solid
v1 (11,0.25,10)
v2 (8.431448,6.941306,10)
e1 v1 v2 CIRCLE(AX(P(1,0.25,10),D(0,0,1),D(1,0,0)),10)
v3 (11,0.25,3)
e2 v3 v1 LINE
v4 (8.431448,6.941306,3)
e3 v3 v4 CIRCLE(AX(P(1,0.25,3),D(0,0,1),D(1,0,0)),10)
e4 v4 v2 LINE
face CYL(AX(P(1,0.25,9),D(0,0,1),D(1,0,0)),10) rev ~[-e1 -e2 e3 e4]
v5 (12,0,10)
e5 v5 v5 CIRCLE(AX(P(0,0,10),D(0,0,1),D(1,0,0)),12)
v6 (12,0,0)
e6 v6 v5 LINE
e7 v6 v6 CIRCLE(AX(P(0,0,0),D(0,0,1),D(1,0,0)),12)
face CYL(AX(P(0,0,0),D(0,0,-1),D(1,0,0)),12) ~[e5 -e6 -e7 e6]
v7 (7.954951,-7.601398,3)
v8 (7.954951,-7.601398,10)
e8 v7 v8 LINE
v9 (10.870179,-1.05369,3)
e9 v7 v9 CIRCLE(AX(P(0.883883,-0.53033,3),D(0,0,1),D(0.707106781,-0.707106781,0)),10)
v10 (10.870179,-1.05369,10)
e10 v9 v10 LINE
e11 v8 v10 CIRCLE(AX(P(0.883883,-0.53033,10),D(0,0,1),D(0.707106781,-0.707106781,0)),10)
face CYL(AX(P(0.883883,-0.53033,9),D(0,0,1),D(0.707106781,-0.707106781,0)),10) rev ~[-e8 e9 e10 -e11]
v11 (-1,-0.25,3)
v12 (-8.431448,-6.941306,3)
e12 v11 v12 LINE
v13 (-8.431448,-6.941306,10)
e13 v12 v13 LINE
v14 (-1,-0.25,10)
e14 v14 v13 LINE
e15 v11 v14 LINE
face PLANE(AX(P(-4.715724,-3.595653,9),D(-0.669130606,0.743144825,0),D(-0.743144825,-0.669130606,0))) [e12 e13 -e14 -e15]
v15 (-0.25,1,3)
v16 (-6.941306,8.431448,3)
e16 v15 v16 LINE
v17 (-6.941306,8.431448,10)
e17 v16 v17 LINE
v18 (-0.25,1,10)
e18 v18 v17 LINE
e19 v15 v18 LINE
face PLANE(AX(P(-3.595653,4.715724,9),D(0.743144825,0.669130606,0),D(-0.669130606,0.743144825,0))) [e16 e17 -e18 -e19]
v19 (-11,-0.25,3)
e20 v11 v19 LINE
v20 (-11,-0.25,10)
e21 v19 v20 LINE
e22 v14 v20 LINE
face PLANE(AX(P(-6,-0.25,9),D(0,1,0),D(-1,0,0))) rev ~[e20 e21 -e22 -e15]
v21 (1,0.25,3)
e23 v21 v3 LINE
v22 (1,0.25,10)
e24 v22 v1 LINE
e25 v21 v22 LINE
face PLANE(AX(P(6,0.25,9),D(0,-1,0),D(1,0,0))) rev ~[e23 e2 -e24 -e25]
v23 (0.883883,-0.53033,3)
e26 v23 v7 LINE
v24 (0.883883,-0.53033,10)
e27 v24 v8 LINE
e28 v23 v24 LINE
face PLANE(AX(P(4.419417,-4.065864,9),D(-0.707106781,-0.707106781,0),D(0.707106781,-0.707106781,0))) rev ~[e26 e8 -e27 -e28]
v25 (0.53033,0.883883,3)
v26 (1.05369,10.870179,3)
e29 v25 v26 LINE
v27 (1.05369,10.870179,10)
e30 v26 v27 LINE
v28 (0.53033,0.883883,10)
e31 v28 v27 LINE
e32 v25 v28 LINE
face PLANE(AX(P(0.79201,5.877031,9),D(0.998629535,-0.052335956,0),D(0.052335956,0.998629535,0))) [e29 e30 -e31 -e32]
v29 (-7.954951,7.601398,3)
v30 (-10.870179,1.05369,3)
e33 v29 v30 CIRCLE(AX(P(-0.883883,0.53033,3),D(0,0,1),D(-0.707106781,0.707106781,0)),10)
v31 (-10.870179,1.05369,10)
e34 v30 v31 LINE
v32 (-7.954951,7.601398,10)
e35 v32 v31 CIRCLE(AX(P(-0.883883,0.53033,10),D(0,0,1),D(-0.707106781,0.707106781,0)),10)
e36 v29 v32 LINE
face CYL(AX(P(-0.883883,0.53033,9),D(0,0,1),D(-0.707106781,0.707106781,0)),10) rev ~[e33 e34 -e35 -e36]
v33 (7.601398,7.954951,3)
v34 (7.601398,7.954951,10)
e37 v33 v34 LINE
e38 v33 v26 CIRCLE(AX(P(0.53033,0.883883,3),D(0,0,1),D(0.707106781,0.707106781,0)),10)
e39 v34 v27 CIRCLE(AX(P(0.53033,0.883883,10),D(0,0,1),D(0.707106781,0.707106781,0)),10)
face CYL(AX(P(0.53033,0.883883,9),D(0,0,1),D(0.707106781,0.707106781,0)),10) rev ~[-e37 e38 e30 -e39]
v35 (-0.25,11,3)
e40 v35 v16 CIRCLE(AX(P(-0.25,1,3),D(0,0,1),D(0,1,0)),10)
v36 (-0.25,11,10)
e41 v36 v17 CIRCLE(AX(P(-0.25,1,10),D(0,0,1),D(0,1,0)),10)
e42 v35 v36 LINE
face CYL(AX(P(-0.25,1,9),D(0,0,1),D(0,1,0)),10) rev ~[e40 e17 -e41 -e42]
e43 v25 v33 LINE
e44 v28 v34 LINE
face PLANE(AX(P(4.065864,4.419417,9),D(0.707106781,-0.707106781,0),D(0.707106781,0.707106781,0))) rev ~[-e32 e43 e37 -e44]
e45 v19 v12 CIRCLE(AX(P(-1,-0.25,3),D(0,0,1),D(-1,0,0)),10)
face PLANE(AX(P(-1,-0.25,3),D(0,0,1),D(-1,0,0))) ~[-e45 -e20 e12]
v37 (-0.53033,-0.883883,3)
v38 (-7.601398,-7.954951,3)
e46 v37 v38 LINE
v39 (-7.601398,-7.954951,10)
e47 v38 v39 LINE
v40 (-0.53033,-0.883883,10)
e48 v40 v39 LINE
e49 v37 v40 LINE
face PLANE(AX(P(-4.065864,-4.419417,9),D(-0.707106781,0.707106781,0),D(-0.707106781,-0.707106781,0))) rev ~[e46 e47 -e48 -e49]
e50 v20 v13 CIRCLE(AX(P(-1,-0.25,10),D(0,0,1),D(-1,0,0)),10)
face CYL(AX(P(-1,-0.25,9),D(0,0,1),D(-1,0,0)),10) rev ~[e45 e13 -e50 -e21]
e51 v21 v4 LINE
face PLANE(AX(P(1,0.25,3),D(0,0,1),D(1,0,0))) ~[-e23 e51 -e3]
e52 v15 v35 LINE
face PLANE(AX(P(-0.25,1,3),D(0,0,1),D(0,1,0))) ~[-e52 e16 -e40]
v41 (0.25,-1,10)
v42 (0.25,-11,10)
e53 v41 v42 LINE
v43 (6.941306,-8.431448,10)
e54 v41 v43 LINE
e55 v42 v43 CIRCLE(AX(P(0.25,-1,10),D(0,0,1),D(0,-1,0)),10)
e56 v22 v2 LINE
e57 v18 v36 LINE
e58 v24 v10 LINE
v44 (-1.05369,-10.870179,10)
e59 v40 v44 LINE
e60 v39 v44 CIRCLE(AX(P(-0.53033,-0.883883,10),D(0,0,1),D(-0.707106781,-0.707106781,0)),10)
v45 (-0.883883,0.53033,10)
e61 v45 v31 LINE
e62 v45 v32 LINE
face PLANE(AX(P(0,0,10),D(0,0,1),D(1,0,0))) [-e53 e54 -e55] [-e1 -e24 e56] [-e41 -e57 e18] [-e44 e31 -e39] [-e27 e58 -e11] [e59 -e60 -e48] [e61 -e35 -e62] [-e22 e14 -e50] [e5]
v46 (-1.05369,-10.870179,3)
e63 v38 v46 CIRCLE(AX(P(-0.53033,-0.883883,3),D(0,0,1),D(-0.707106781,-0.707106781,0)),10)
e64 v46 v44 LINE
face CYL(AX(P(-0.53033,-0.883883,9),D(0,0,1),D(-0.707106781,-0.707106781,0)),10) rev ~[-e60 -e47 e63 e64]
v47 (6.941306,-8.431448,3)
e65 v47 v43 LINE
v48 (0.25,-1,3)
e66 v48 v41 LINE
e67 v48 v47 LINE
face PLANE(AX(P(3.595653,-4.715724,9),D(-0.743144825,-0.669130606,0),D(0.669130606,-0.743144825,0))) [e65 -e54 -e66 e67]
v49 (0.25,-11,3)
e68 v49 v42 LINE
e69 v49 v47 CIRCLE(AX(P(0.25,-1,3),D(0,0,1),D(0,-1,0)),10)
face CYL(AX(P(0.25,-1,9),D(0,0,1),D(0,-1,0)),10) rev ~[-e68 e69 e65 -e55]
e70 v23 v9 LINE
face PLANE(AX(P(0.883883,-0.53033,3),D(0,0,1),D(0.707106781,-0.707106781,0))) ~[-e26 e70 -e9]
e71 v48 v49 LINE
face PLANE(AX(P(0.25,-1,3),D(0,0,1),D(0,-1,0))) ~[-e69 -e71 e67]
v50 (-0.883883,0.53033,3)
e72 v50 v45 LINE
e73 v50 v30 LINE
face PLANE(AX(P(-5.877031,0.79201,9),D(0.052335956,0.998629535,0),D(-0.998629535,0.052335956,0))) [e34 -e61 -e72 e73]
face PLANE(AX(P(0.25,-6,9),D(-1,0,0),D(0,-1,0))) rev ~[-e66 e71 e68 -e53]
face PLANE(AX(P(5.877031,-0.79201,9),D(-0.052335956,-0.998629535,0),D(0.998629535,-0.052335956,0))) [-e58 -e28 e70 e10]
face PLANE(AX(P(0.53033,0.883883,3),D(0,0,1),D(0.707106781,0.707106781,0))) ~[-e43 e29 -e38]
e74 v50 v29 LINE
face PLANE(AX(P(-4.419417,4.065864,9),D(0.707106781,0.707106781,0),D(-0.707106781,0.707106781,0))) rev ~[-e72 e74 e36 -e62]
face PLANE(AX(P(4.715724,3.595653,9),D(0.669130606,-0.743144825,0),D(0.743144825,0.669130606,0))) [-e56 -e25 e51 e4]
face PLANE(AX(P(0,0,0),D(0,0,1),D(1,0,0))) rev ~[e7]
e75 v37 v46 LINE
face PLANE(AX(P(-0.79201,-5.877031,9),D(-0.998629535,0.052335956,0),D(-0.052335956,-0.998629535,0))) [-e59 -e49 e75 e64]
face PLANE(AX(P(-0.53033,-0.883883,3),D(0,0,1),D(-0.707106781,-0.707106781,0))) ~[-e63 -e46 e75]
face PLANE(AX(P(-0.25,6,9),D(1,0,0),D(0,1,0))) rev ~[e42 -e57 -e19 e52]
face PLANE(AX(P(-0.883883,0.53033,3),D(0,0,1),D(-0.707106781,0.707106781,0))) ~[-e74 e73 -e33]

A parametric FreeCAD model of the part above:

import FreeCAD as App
import Part
import Sketcher
Q = App.Units.Quantity

doc = App.newDocument("Part")
params = doc.addObject("Spreadsheet::Sheet", "Params")
for row, (alias, value) in enumerate([
    ("sketch1_width", "10 mm"),
    ("sketch1_height", "12 mm"),
    ("revolution_angle", "42 deg"),
    ("sketch2_diameter", "24 mm"),
    ("pad1_length", "10 mm"),
], start=1):
    params.set(f"A{row}", alias)
    params.set(f"B{row}", "=" + value)
    params.setAlias(f"B{row}", alias)

body = doc.addObject("PartDesign::Body", "Body")

sketch1 = body.newObject("Sketcher::SketchObject", "Sketch")
sketch1.AttachmentSupport = (doc.getObject("XZ_Plane"), [""])
sketch1.MapMode = "FlatFace"
sketch1.AttachmentOffset = App.Placement(App.Vector(0, 0, -0.25), App.Rotation())
sketch1.addGeometry(Part.LineSegment(App.Vector(1, 15, 0), App.Vector(1, 3, 0)), False)
sketch1.addGeometry(Part.LineSegment(App.Vector(1, 3, 0), App.Vector(11, 3, 0)), False)
sketch1.addGeometry(Part.LineSegment(App.Vector(11, 3, 0), App.Vector(11, 15, 0)), False)
sketch1.addGeometry(Part.LineSegment(App.Vector(11, 15, 0), App.Vector(1, 15, 0)), False)
sketch1.addGeometry(Part.LineSegment(App.Vector(1, 3, 0), App.Vector(1, 15, 0)), True)
sketch1.addConstraint(Sketcher.Constraint("Coincident", 0, 2, 1, 1))
sketch1.addConstraint(Sketcher.Constraint("Coincident", 1, 2, 2, 1))
sketch1.addConstraint(Sketcher.Constraint("Coincident", 2, 2, 3, 1))
sketch1.addConstraint(Sketcher.Constraint("Coincident", 3, 2, 0, 1))
sketch1.addConstraint(Sketcher.Constraint("Vertical", 0))
sketch1.addConstraint(Sketcher.Constraint("Horizontal", 1))
sketch1.addConstraint(Sketcher.Constraint("Vertical", 2))
sketch1.addConstraint(Sketcher.Constraint("Horizontal", 3))
sketch1.addConstraint(Sketcher.Constraint("Vertical", 4))
sketch1.addConstraint(Sketcher.Constraint("Coincident", 4, 1, 0, 2))
sketch1.addConstraint(Sketcher.Constraint("Horizontal", 2, 2, 4, 2))
sketch1.addConstraint(Sketcher.Constraint("DistanceX", 1, 1, 1, 2, Q("10 mm")))
sketch1.addConstraint(Sketcher.Constraint("DistanceY", 0, 2, 0, 1, Q("12 mm")))
sketch1.addConstraint(Sketcher.Constraint("DistanceX", -1, 1, 0, 2, Q("1 mm")))
sketch1.addConstraint(Sketcher.Constraint("DistanceY", -1, 1, 0, 2, Q("3 mm")))
sketch1.setExpression("Constraints[11]", "Params.sketch1_width")
sketch1.setExpression("Constraints[12]", "Params.sketch1_height")
revolution = body.newObject("PartDesign::Revolution", "Revolution")
revolution.Profile = sketch1
revolution.ReferenceAxis = (sketch1, ["Axis0"])
revolution.setExpression("Angle", "Params.revolution_angle")
body2 = doc.addObject("PartDesign::Body", "Body001")
body2.AllowCompound = True
doc.recompute()

body2.BaseFeature = body
doc.recompute()

body3 = doc.addObject("PartDesign::Body", "Body002")
body3.BaseFeature = body
body3.Placement = App.Placement(App.Vector(0, 0, 0), App.Rotation(App.Vector(0, 0, 1), 45))
boolean = body2.newObject("PartDesign::Boolean", "Boolean")
boolean.Type = "Fuse"
boolean.addObjects([body3])
doc.recompute()

body4 = doc.addObject("PartDesign::Body", "Body003")
body4.BaseFeature = body
body4.Placement = App.Placement(App.Vector(0, 0, 0), App.Rotation(App.Vector(0, 0, 1), 90))
boolean2 = body2.newObject("PartDesign::Boolean", "Boolean001")
boolean2.Type = "Fuse"
boolean2.addObjects([body4])
doc.recompute()

body5 = doc.addObject("PartDesign::Body", "Body004")
body5.BaseFeature = body
body5.Placement = App.Placement(App.Vector(0, 0, 0), App.Rotation(App.Vector(0, 0, 1), 135))
boolean3 = body2.newObject("PartDesign::Boolean", "Boolean002")
boolean3.Type = "Fuse"
boolean3.addObjects([body5])
doc.recompute()

body6 = doc.addObject("PartDesign::Body", "Body005")
body6.BaseFeature = body
body6.Placement = App.Placement(App.Vector(0, 0, 0), App.Rotation(App.Vector(0, 0, 1), 180))
boolean4 = body2.newObject("PartDesign::Boolean", "Boolean003")
boolean4.Type = "Fuse"
boolean4.addObjects([body6])
doc.recompute()

body7 = doc.addObject("PartDesign::Body", "Body006")
body7.BaseFeature = body
body7.Placement = App.Placement(App.Vector(0, 0, 0), App.Rotation(App.Vector(0, 0, 1), 225))
boolean5 = body2.newObject("PartDesign::Boolean", "Boolean004")
boolean5.Type = "Fuse"
boolean5.addObjects([body7])
doc.recompute()

body8 = doc.addObject("PartDesign::Body", "Body007")
body8.BaseFeature = body
body8.Placement = App.Placement(App.Vector(0, 0, 0), App.Rotation(App.Vector(0, 0, 1), 270))
boolean6 = body2.newObject("PartDesign::Boolean", "Boolean005")
boolean6.Type = "Fuse"
boolean6.addObjects([body8])
doc.recompute()

body.Placement = App.Placement(App.Vector(0, 0, 0), App.Rotation(App.Vector(0, 0, 1), 315))
boolean7 = body2.newObject("PartDesign::Boolean", "Boolean006")
boolean7.Type = "Fuse"
boolean7.addObjects([body])
body9 = doc.addObject("PartDesign::Body", "Body008")

sketch2 = body9.newObject("Sketcher::SketchObject", "Sketch001")
sketch2.AttachmentSupport = (doc.getObject("XY_Plane008"), [""])
sketch2.MapMode = "FlatFace"
sketch2.addGeometry(Part.Circle(App.Vector(0, 0, 0), App.Vector(0, 0, 1), 12), False)
sketch2.addConstraint(Sketcher.Constraint("Coincident", 0, 3, -1, 1))
sketch2.addConstraint(Sketcher.Constraint("Diameter", 0, Q("24 mm")))
sketch2.setExpression("Constraints[1]", "Params.sketch2_diameter")
pad1 = body9.newObject("PartDesign::Pad", "Pad")
pad1.Profile = sketch2
pad1.setExpression("Length", "Params.pad1_length")
doc.recompute()

boolean8 = body9.newObject("PartDesign::Boolean", "Boolean007")
boolean8.Type = "Cut"
boolean8.addObjects([body2])

doc.recompute()
